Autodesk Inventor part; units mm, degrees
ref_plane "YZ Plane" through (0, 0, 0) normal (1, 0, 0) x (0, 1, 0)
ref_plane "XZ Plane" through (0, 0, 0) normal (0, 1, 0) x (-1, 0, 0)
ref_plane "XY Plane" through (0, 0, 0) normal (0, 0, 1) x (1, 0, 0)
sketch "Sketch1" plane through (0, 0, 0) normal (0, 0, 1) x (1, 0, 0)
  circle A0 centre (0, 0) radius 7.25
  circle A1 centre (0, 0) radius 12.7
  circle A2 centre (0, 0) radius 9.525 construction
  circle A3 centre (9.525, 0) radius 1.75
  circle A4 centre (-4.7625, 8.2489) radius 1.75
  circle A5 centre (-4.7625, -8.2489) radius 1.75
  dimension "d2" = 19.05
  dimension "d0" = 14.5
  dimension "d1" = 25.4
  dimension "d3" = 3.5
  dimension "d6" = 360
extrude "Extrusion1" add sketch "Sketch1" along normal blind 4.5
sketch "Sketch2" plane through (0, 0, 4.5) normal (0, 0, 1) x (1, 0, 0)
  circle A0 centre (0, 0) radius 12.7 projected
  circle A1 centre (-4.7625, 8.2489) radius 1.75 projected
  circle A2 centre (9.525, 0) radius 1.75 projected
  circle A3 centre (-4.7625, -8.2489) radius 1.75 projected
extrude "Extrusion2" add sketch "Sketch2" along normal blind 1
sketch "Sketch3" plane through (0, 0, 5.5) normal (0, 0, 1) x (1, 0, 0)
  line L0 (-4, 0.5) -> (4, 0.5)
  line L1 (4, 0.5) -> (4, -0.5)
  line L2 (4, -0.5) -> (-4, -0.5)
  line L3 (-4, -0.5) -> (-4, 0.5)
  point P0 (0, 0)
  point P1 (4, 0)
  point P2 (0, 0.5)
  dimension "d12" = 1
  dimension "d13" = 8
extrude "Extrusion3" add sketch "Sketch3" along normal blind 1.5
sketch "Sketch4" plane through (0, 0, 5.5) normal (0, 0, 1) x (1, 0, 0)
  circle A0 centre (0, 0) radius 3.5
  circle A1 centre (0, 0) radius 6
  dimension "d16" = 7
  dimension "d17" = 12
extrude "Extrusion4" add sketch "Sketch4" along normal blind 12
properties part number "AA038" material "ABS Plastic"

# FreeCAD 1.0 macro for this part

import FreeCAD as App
import Part
import Sketcher
from FreeCAD import Vector
Q = App.Units.Quantity


def add_polygon(sketch, points):
    """Adds a closed chain of lines whose ends are joined by coincident constraints."""
    first, n = sketch.GeometryCount, len(points)
    for a, b in zip(points, points[1:] + points[:1]):
        sketch.addGeometry(Part.LineSegment(App.Vector(*a, 0), App.Vector(*b, 0)), False)
    for i in range(n):
        sketch.addConstraint(Sketcher.Constraint("Coincident", first + i, 2, first + (i + 1) % n, 1))

doc = App.newDocument("Part")
body = doc.addObject("PartDesign::Body", "Body")

# Sketch on XY plane
sketch1 = body.newObject("Sketcher::SketchObject", "Sketch")
sketch1.AttachmentSupport = (doc.getObject("XY_Plane"), [""])
sketch1.MapMode = "FlatFace"
sketch1.addGeometry(Part.Circle(Vector(0, 0, 0), Vector(0, 0, 1), 12.7), False)
sketch1.addGeometry(Part.Circle(Vector(-4.8, -8.2, 0), Vector(0, 0, 1), 1.8), False)
sketch1.addGeometry(Part.Circle(Vector(0, 0, 0), Vector(0, 0, 1), 7.2), False)
sketch1.addGeometry(Part.Circle(Vector(9.5, 0, 0), Vector(0, 0, 1), 1.8), False)
sketch1.addGeometry(Part.Circle(Vector(-4.8, 8.2, 0), Vector(0, 0, 1), 1.8), False)
sketch1.addConstraint(Sketcher.Constraint("Coincident", 0, 3, -1, 1))
sketch1.addConstraint(Sketcher.Constraint("Coincident", 2, 3, -1, 1))
sketch1.addConstraint(Sketcher.Constraint("Equal", 1, 3))
sketch1.addConstraint(Sketcher.Constraint("Equal", 3, 4))
sketch1.addConstraint(Sketcher.Constraint("Symmetric", 1, 3, 4, 3, -1))
sketch1.addConstraint(Sketcher.Constraint("PointOnObject", 3, 3, -1))
sketch1.addConstraint(Sketcher.Constraint("Diameter", 0, Q("25.4 mm")))
sketch1.addConstraint(Sketcher.Constraint("Diameter", 1, Q("3.5 mm")))
sketch1.addConstraint(Sketcher.Constraint("Diameter", 2, Q("14.5 mm")))
sketch1.addConstraint(Sketcher.Constraint("DistanceY", 1, 3, -1, 1, Q("8.249 mm")))
sketch1.addConstraint(Sketcher.Constraint("DistanceX", -1, 1, 3, 3, Q("9.525 mm")))
sketch1.addConstraint(Sketcher.Constraint("DistanceX", 1, 3, -1, 1, Q("4.7625 mm")))
pad1 = body.newObject("PartDesign::Pad", "Pad")
pad1.Profile = sketch1
pad1.Length = 4.5

# Sketch on XY plane
sketch2 = body.newObject("Sketcher::SketchObject", "Sketch001")
sketch2.AttachmentSupport = (doc.getObject("XY_Plane"), [""])
sketch2.MapMode = "FlatFace"
sketch2.AttachmentOffset = App.Placement(Vector(0, 0, 4.5), App.Rotation())
sketch2.addGeometry(Part.Circle(Vector(0, 0, 0), Vector(0, 0, 1), 12.7), False)
sketch2.addGeometry(Part.Circle(Vector(-4.8, -8.2, 0), Vector(0, 0, 1), 1.8), False)
sketch2.addGeometry(Part.Circle(Vector(9.5, 0, 0), Vector(0, 0, 1), 1.8), False)
sketch2.addGeometry(Part.Circle(Vector(-4.8, 8.2, 0), Vector(0, 0, 1), 1.8), False)
sketch2.addConstraint(Sketcher.Constraint("Coincident", 0, 3, -1, 1))
sketch2.addConstraint(Sketcher.Constraint("Equal", 1, 2))
sketch2.addConstraint(Sketcher.Constraint("Equal", 2, 3))
sketch2.addConstraint(Sketcher.Constraint("Symmetric", 1, 3, 3, 3, -1))
sketch2.addConstraint(Sketcher.Constraint("PointOnObject", 2, 3, -1))
sketch2.addConstraint(Sketcher.Constraint("Diameter", 0, Q("25.4 mm")))
sketch2.addConstraint(Sketcher.Constraint("Diameter", 1, Q("3.5 mm")))
sketch2.addConstraint(Sketcher.Constraint("DistanceY", 1, 3, -1, 1, Q("8.249 mm")))
sketch2.addConstraint(Sketcher.Constraint("DistanceX", -1, 1, 2, 3, Q("9.525 mm")))
sketch2.addConstraint(Sketcher.Constraint("DistanceX", 1, 3, -1, 1, Q("4.7625 mm")))
pad2 = body.newObject("PartDesign::Pad", "Pad001")
pad2.Profile = sketch2
pad2.Length = 1

# Sketch on XY plane
sketch3 = body.newObject("Sketcher::SketchObject", "Sketch002")
sketch3.AttachmentSupport = (doc.getObject("XY_Plane"), [""])
sketch3.MapMode = "FlatFace"
sketch3.AttachmentOffset = App.Placement(Vector(0, 0, 5.5), App.Rotation())
add_polygon(sketch3, [(4, 0.5), (-4, 0.5), (-4, -0.5), (4, -0.5)])  # lines 0-3
sketch3.addConstraint(Sketcher.Constraint("Horizontal", 0))
sketch3.addConstraint(Sketcher.Constraint("Vertical", 1))
sketch3.addConstraint(Sketcher.Constraint("Horizontal", 2))
sketch3.addConstraint(Sketcher.Constraint("Vertical", 3))
sketch3.addConstraint(Sketcher.Constraint("Symmetric", 0, 2, 2, 2, -1, 1))
sketch3.addConstraint(Sketcher.Constraint("DistanceX", 0, 2, 0, 1, Q("8 mm")))
sketch3.addConstraint(Sketcher.Constraint("DistanceY", 1, 2, 1, 1, Q("1 mm")))
pad3 = body.newObject("PartDesign::Pad", "Pad002")
pad3.Profile = sketch3
pad3.Length = 1.5

# Sketch on XY plane
sketch4 = body.newObject("Sketcher::SketchObject", "Sketch003")
sketch4.AttachmentSupport = (doc.getObject("XY_Plane"), [""])
sketch4.MapMode = "FlatFace"
sketch4.AttachmentOffset = App.Placement(Vector(0, 0, 5.5), App.Rotation())
sketch4.addGeometry(Part.Circle(Vector(0, 0, 0), Vector(0, 0, 1), 6), False)
sketch4.addGeometry(Part.Circle(Vector(0, 0, 0), Vector(0, 0, 1), 3.5), False)
sketch4.addConstraint(Sketcher.Constraint("Coincident", 0, 3, -1, 1))
sketch4.addConstraint(Sketcher.Constraint("Coincident", 1, 3, -1, 1))
sketch4.addConstraint(Sketcher.Constraint("Diameter", 0, Q("12 mm")))
sketch4.addConstraint(Sketcher.Constraint("Diameter", 1, Q("7 mm")))
pad4 = body.newObject("PartDesign::Pad", "Pad003")
pad4.Profile = sketch4
pad4.Length = 12

doc.recompute()
